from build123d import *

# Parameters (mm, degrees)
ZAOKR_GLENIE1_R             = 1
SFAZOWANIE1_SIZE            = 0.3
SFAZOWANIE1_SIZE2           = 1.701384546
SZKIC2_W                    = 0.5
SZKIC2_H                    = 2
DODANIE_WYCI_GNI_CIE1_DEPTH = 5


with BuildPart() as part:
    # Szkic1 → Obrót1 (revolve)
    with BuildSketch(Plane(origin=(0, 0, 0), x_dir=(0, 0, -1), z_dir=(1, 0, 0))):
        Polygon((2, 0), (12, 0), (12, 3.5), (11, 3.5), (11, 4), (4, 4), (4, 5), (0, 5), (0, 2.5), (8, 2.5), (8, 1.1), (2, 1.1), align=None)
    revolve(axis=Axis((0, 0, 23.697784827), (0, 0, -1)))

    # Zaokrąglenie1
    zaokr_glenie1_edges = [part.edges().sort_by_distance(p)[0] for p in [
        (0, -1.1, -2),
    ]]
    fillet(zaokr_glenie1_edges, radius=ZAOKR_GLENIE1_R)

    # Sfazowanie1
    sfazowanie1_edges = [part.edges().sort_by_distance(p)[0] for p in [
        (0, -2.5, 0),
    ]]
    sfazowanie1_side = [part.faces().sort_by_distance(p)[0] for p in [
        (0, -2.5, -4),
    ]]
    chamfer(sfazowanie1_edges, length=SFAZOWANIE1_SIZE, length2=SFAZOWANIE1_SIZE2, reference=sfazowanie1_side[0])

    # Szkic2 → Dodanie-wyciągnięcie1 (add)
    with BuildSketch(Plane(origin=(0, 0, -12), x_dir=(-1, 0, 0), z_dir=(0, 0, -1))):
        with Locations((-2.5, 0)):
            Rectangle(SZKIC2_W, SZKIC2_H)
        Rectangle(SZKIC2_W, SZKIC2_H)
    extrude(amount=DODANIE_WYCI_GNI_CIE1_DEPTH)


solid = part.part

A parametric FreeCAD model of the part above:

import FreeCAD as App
import Part
import Sketcher
from FreeCAD import Vector
Q = App.Units.Quantity


def edges_at(feature, points):
    """Names of the edges that pass closest to the given points."""
    edges = feature.Shape.Edges
    near = lambda p: min(range(len(edges)), key=lambda i: edges[i].distToShape(Part.Vertex(*p))[0])
    return sorted({f"Edge{near(p) + 1}" for p in points})

doc = App.newDocument("Part")
body = doc.addObject("PartDesign::Body", "Body")

# Sketch on YZ plane
sketch1 = doc.addObject("Sketcher::SketchObject", "Sketch")
body.addObject(sketch1)
sketch1.AttachmentSupport = (doc.YZ_Plane, [""])
sketch1.MapMode = "FlatFace"
sketch1.addGeometry([
    Part.LineSegment(Vector(0, -2, 0), Vector(0, -12, 0)),  # 0
    Part.LineSegment(Vector(0, -12, 0), Vector(3.5, -12, 0)),  # 1
    Part.LineSegment(Vector(3.5, -12, 0), Vector(3.5, -11, 0)),  # 2
    Part.LineSegment(Vector(3.5, -11, 0), Vector(4, -11, 0)),  # 3
    Part.LineSegment(Vector(4, -11, 0), Vector(4, -4, 0)),  # 4
    Part.LineSegment(Vector(4, -4, 0), Vector(5, -4, 0)),  # 5
    Part.LineSegment(Vector(5, -4, 0), Vector(5, 0, 0)),  # 6
    Part.LineSegment(Vector(5, 0, 0), Vector(2.5, 0, 0)),  # 7
    Part.LineSegment(Vector(2.5, 0, 0), Vector(2.5, -8, 0)),  # 8
    Part.LineSegment(Vector(2.5, -8, 0), Vector(1.1, -8, 0)),  # 9
    Part.LineSegment(Vector(1.1, -8, 0), Vector(1.1, -2, 0)),  # 10
    Part.LineSegment(Vector(1.1, -2, 0), Vector(0, -2, 0)),  # 11
], False)
sketch1.addConstraint([
    Sketcher.Constraint("Coincident", 0, 2, 1, 1),
    Sketcher.Constraint("Coincident", 1, 2, 2, 1),
    Sketcher.Constraint("Coincident", 2, 2, 3, 1),
    Sketcher.Constraint("Coincident", 3, 2, 4, 1),
    Sketcher.Constraint("Coincident", 4, 2, 5, 1),
    Sketcher.Constraint("Coincident", 5, 2, 6, 1),
    Sketcher.Constraint("Coincident", 6, 2, 7, 1),
    Sketcher.Constraint("Coincident", 7, 2, 8, 1),
    Sketcher.Constraint("Coincident", 8, 2, 9, 1),
    Sketcher.Constraint("Coincident", 9, 2, 10, 1),
    Sketcher.Constraint("Coincident", 10, 2, 11, 1),
    Sketcher.Constraint("Coincident", 11, 2, 0, 1),
    Sketcher.Constraint("Vertical", 0),
    Sketcher.Constraint("Horizontal", 1),
    Sketcher.Constraint("Vertical", 2),
    Sketcher.Constraint("Horizontal", 3),
    Sketcher.Constraint("Vertical", 4),
    Sketcher.Constraint("Horizontal", 5),
    Sketcher.Constraint("Vertical", 6),
    Sketcher.Constraint("Horizontal", 7),
    Sketcher.Constraint("Vertical", 8),
    Sketcher.Constraint("Horizontal", 9),
    Sketcher.Constraint("Vertical", 10),
    Sketcher.Constraint("Horizontal", 11),
    Sketcher.Constraint("PointOnObject", 0, 2, -2),
    Sketcher.Constraint("PointOnObject", 6, 2, -1),
    Sketcher.Constraint("Equal", 5, 2),
    Sketcher.Constraint("DistanceX", 5, 1, 5, 2, Q("1 mm")),
    Sketcher.Constraint("DistanceY", 0, 2, 0, 1, Q("10 mm")),
    Sketcher.Constraint("DistanceY", 4, 1, 4, 2, Q("7 mm")),
    Sketcher.Constraint("DistanceY", 6, 1, 6, 2, Q("4 mm")),
    Sketcher.Constraint("DistanceY", 8, 2, 8, 1, Q("8 mm")),
    Sketcher.Constraint("DistanceX", 1, 1, 1, 2, Q("3.5 mm")),
    Sketcher.Constraint("DistanceX", 3, 1, 3, 2, Q("0.5 mm")),
    Sketcher.Constraint("DistanceX", 7, 2, 7, 1, Q("2.5 mm")),
    Sketcher.Constraint("DistanceX", 9, 2, 9, 1, Q("1.4 mm")),
])
revolution = doc.addObject("PartDesign::Revolution", "Revolution")
body.addObject(revolution)
revolution.Profile = sketch1
revolution.ReferenceAxis = (sketch1, ["V_Axis"])
revolution.Angle = 360
doc.recompute()

fillet = doc.addObject("PartDesign::Fillet", "Fillet")
body.addObject(fillet)
fillet.Base = (revolution, edges_at(revolution, [(0, -1.1, -2)]))
fillet.Radius = 1
doc.recompute()

chamfer = doc.addObject("PartDesign::Chamfer", "Chamfer")
body.addObject(chamfer)
chamfer.Base = (fillet, edges_at(fillet, [(0, -2.5, 0)]))
chamfer.ChamferType = "Two distances"
chamfer.Size = 0.3
chamfer.Size2 = 1.701385

# Sketch on XY plane
sketch2 = doc.addObject("Sketcher::SketchObject", "Sketch001")
body.addObject(sketch2)
sketch2.AttachmentSupport = (doc.XY_Plane, [""])
sketch2.MapMode = "FlatFace"
sketch2.AttachmentOffset = App.Placement(Vector(0, 0, -12), App.Rotation())
sketch2.addGeometry([
    Part.LineSegment(Vector(2.8, 1, 0), Vector(2.8, -1, 0)),  # 0
    Part.LineSegment(Vector(2.8, -1, 0), Vector(2.2, -1, 0)),  # 1
    Part.LineSegment(Vector(2.2, -1, 0), Vector(2.2, 1, 0)),  # 2
    Part.LineSegment(Vector(2.2, 1, 0), Vector(2.8, 1, 0)),  # 3
    Part.LineSegment(Vector(0.2, 1, 0), Vector(0.2, -1, 0)),  # 4
    Part.LineSegment(Vector(0.2, -1, 0), Vector(-0.2, -1, 0)),  # 5
    Part.LineSegment(Vector(-0.2, -1, 0), Vector(-0.2, 1, 0)),  # 6
    Part.LineSegment(Vector(-0.2, 1, 0), Vector(0.2, 1, 0)),  # 7
], False)
sketch2.addConstraint([
    Sketcher.Constraint("Coincident", 0, 2, 1, 1),
    Sketcher.Constraint("Coincident", 1, 2, 2, 1),
    Sketcher.Constraint("Coincident", 2, 2, 3, 1),
    Sketcher.Constraint("Coincident", 3, 2, 0, 1),
    Sketcher.Constraint("Coincident", 4, 2, 5, 1),
    Sketcher.Constraint("Coincident", 5, 2, 6, 1),
    Sketcher.Constraint("Coincident", 6, 2, 7, 1),
    Sketcher.Constraint("Coincident", 7, 2, 4, 1),
    Sketcher.Constraint("Vertical", 0),
    Sketcher.Constraint("Horizontal", 1),
    Sketcher.Constraint("Vertical", 2),
    Sketcher.Constraint("Horizontal", 3),
    Sketcher.Constraint("Vertical", 4),
    Sketcher.Constraint("Horizontal", 5),
    Sketcher.Constraint("Vertical", 6),
    Sketcher.Constraint("Horizontal", 7),
    Sketcher.Constraint("Symmetric", 4, 2, 6, 2, -1, 1),
    Sketcher.Constraint("Horizontal", 1, 2, 4, 2),
    Sketcher.Constraint("Horizontal", 3, 2, 6, 2),
    Sketcher.Constraint("Equal", 3, 5),
    Sketcher.Constraint("DistanceY", 0, 2, 0, 1, Q("2 mm")),
    Sketcher.Constraint("DistanceX", 1, 2, 1, 1, Q("0.5 mm")),
    Sketcher.Constraint("DistanceX", 4, 2, 1, 2, Q("2 mm")),
])
pad1 = doc.addObject("PartDesign::Pad", "Pad")
body.addObject(pad1)
pad1.Profile = sketch2
pad1.Length = 5
pad1.Reversed = True

doc.recompute()
